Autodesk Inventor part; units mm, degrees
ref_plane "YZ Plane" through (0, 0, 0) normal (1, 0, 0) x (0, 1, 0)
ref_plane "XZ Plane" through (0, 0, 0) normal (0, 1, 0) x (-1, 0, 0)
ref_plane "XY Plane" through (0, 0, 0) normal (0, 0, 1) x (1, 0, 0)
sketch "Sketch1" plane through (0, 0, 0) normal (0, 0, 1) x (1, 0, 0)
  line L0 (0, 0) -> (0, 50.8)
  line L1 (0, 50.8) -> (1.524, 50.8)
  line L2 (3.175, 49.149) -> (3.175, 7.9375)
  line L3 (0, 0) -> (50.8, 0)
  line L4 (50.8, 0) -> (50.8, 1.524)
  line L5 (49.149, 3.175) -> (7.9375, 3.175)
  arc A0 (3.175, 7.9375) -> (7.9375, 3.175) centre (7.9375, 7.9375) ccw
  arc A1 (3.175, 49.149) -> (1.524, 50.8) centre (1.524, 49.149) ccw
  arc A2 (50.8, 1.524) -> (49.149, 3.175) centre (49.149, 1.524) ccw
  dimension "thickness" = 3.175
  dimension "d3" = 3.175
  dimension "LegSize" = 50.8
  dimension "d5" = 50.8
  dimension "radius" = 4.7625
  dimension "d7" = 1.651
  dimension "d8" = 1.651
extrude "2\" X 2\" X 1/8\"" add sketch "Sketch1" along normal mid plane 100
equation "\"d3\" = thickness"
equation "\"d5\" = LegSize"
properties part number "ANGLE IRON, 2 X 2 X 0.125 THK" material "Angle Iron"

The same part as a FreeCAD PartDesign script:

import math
import FreeCAD as App
import Part
import Sketcher
Q = App.Units.Quantity

doc = App.newDocument("Part")
body = doc.addObject("PartDesign::Body", "Body")

# Sketch on XY plane
sketch1 = body.newObject("Sketcher::SketchObject", "Sketch")
sketch1.AttachmentSupport = (doc.getObject("XY_Plane"), [""])
sketch1.MapMode = "FlatFace"
sketch1.addGeometry(Part.LineSegment(App.Vector(0, 50.8, 0), App.Vector(0, 0, 0)), False)
sketch1.addGeometry(Part.LineSegment(App.Vector(0, 0, 0), App.Vector(50.8, 0, 0)), False)
sketch1.addGeometry(Part.LineSegment(App.Vector(50.8, 0, 0), App.Vector(50.8, 1.5, 0)), False)
sketch1.addGeometry(Part.ArcOfCircle(Part.Circle(App.Vector(49.1, 1.5, 0), App.Vector(0, 0, 1), 1.7), math.radians(0), math.radians(90)), False)
sketch1.addGeometry(Part.LineSegment(App.Vector(49.1, 3.2, 0), App.Vector(7.9, 3.2, 0)), False)
sketch1.addGeometry(Part.ArcOfCircle(Part.Circle(App.Vector(7.9, 7.9, 0), App.Vector(0, 0, 1), 4.8), math.radians(180), math.radians(270)), False)
sketch1.addGeometry(Part.LineSegment(App.Vector(3.2, 7.9, 0), App.Vector(3.2, 49.1, 0)), False)
sketch1.addGeometry(Part.ArcOfCircle(Part.Circle(App.Vector(1.5, 49.1, 0), App.Vector(0, 0, 1), 1.7), math.radians(0), math.radians(90)), False)
sketch1.addGeometry(Part.LineSegment(App.Vector(1.5, 50.8, 0), App.Vector(0, 50.8, 0)), False)
sketch1.addConstraint(Sketcher.Constraint("Coincident", 0, 2, 1, 1))
sketch1.addConstraint(Sketcher.Constraint("Coincident", 1, 2, 2, 1))
sketch1.addConstraint(Sketcher.Constraint("Tangent", 2, 2, 3, 1))
sketch1.addConstraint(Sketcher.Constraint("Tangent", 3, 2, 4, 1))
sketch1.addConstraint(Sketcher.Constraint("Tangent", 4, 2, 5, 2))
sketch1.addConstraint(Sketcher.Constraint("Tangent", 5, 1, 6, 1))
sketch1.addConstraint(Sketcher.Constraint("Tangent", 6, 2, 7, 1))
sketch1.addConstraint(Sketcher.Constraint("Tangent", 7, 2, 8, 1))
sketch1.addConstraint(Sketcher.Constraint("Coincident", 8, 2, 0, 1))
sketch1.addConstraint(Sketcher.Constraint("Vertical", 0))
sketch1.addConstraint(Sketcher.Constraint("Horizontal", 1))
sketch1.addConstraint(Sketcher.Constraint("Vertical", 2))
sketch1.addConstraint(Sketcher.Constraint("Horizontal", 4))
sketch1.addConstraint(Sketcher.Constraint("Vertical", 6))
sketch1.addConstraint(Sketcher.Constraint("Horizontal", 8))
sketch1.addConstraint(Sketcher.Constraint("Coincident", 0, 2, -1, 1))
sketch1.addConstraint(Sketcher.Constraint("Equal", 3, 7))
sketch1.addConstraint(Sketcher.Constraint("Equal", 1, 0))
sketch1.addConstraint(Sketcher.Constraint("Equal", 8, 2))
sketch1.addConstraint(Sketcher.Constraint("DistanceX", 1, 1, 1, 2, Q("2 in")))
sketch1.addConstraint(Sketcher.Constraint("Radius", 3, Q("0.065 in")))
sketch1.addConstraint(Sketcher.Constraint("Radius", 5, Q("0.1875 in")))
sketch1.addConstraint(Sketcher.Constraint("DistanceY", -1, 1, 3, 2, Q("0.125 in")))
pad1 = body.newObject("PartDesign::Pad", "Pad")
pad1.Profile = sketch1
pad1.Length = Q("3.9370079 in")
pad1.Midplane = True

doc.recompute()
